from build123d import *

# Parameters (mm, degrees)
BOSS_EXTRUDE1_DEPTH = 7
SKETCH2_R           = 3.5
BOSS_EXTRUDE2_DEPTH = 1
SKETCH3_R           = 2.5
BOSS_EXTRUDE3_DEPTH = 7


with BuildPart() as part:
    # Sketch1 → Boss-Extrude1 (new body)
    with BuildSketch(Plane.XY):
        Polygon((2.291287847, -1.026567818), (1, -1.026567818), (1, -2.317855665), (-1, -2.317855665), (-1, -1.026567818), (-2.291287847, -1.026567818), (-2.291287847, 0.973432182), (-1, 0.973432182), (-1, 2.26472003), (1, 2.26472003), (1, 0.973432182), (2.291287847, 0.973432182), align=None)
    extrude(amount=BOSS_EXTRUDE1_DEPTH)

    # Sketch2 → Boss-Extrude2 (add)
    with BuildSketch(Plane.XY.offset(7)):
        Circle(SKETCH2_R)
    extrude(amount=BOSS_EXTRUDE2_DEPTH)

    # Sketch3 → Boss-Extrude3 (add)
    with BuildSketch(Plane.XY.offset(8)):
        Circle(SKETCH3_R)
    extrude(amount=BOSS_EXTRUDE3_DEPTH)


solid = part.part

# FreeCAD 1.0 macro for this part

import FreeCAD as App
import Part
import Sketcher

doc = App.newDocument("Part")
body = doc.addObject("PartDesign::Body", "Body")

# Sketch on XY plane
sketch1 = body.newObject("Sketcher::SketchObject", "Sketch")
sketch1.AttachmentSupport = (doc.getObject("XY_Plane"), [""])
sketch1.MapMode = "FlatFace"
sketch1.addGeometry(Part.LineSegment(App.Vector(1, -1.026568, 0), App.Vector(2.291288, -1.026568, 0)), False)
sketch1.addGeometry(Part.LineSegment(App.Vector(2.291288, -1.026568, 0), App.Vector(2.291288, 0.973432, 0)), False)
sketch1.addGeometry(Part.LineSegment(App.Vector(2.291288, 0.973432, 0), App.Vector(1, 0.973432, 0)), False)
sketch1.addGeometry(Part.LineSegment(App.Vector(1, 0.973432, 0), App.Vector(1, 2.26472, 0)), False)
sketch1.addGeometry(Part.LineSegment(App.Vector(1, 2.26472, 0), App.Vector(-1, 2.26472, 0)), False)
sketch1.addGeometry(Part.LineSegment(App.Vector(-1, 2.26472, 0), App.Vector(-1, 0.973432, 0)), False)
sketch1.addGeometry(Part.LineSegment(App.Vector(-1, 0.973432, 0), App.Vector(-2.291288, 0.973432, 0)), False)
sketch1.addGeometry(Part.LineSegment(App.Vector(-2.291288, 0.973432, 0), App.Vector(-2.291288, -1.026568, 0)), False)
sketch1.addGeometry(Part.LineSegment(App.Vector(-2.291288, -1.026568, 0), App.Vector(-1, -1.026568, 0)), False)
sketch1.addGeometry(Part.LineSegment(App.Vector(-1, -1.026568, 0), App.Vector(-1, -2.317856, 0)), False)
sketch1.addGeometry(Part.LineSegment(App.Vector(-1, -2.317856, 0), App.Vector(1, -2.317856, 0)), False)
sketch1.addGeometry(Part.LineSegment(App.Vector(1, -2.317856, 0), App.Vector(1, -1.026568, 0)), False)
sketch1.addConstraint(Sketcher.Constraint("Coincident", 0, 2, 1, 1))
sketch1.addConstraint(Sketcher.Constraint("Coincident", 1, 2, 2, 1))
sketch1.addConstraint(Sketcher.Constraint("Coincident", 2, 2, 3, 1))
sketch1.addConstraint(Sketcher.Constraint("Coincident", 3, 2, 4, 1))
sketch1.addConstraint(Sketcher.Constraint("Coincident", 4, 2, 5, 1))
sketch1.addConstraint(Sketcher.Constraint("Coincident", 5, 2, 6, 1))
sketch1.addConstraint(Sketcher.Constraint("Coincident", 6, 2, 7, 1))
sketch1.addConstraint(Sketcher.Constraint("Coincident", 7, 2, 8, 1))
sketch1.addConstraint(Sketcher.Constraint("Coincident", 8, 2, 9, 1))
sketch1.addConstraint(Sketcher.Constraint("Coincident", 9, 2, 10, 1))
sketch1.addConstraint(Sketcher.Constraint("Coincident", 10, 2, 11, 1))
sketch1.addConstraint(Sketcher.Constraint("Coincident", 11, 2, 0, 1))
sketch1.addConstraint(Sketcher.Constraint("Horizontal", 0))
sketch1.addConstraint(Sketcher.Constraint("Vertical", 1))
sketch1.addConstraint(Sketcher.Constraint("Horizontal", 2))
sketch1.addConstraint(Sketcher.Constraint("Vertical", 3))
sketch1.addConstraint(Sketcher.Constraint("Horizontal", 4))
sketch1.addConstraint(Sketcher.Constraint("Vertical", 5))
sketch1.addConstraint(Sketcher.Constraint("Horizontal", 6))
sketch1.addConstraint(Sketcher.Constraint("Vertical", 7))
sketch1.addConstraint(Sketcher.Constraint("Horizontal", 8))
sketch1.addConstraint(Sketcher.Constraint("Vertical", 9))
sketch1.addConstraint(Sketcher.Constraint("Horizontal", 10))
sketch1.addConstraint(Sketcher.Constraint("Vertical", 11))
sketch1.addConstraint(Sketcher.Constraint("Symmetric", 2, 2, 5, 2, -2))
sketch1.addConstraint(Sketcher.Constraint("Symmetric", 0, 2, 7, 2, -2))
sketch1.addConstraint(Sketcher.Constraint("Vertical", 5, 2, 8, 2))
sketch1.addConstraint(Sketcher.Constraint("Vertical", 3, 2, 10, 2))
sketch1.addConstraint(Sketcher.Constraint("Equal", 10, 1))
sketch1.addConstraint(Sketcher.Constraint("Equal", 8, 3))
sketch1.addConstraint(Sketcher.Constraint("Equal", 5, 9))
sketch1.addConstraint(Sketcher.Constraint("DistanceX", 4, 2, 4, 1, 2.0))
sketch1.addConstraint(Sketcher.Constraint("DistanceX", 0, 1, 0, 2, 1.291288))
sketch1.addConstraint(Sketcher.Constraint("DistanceY", -1, 1, 3, 2, 2.26472))
pad1 = body.newObject("PartDesign::Pad", "Pad")
pad1.Profile = sketch1
pad1.Length = 7

# Sketch on XY plane
sketch2 = body.newObject("Sketcher::SketchObject", "Sketch001")
sketch2.AttachmentSupport = (doc.getObject("XY_Plane"), [""])
sketch2.MapMode = "FlatFace"
sketch2.AttachmentOffset = App.Placement(App.Vector(0, 0, 7), App.Rotation())
sketch2.addGeometry(Part.Circle(App.Vector(0, 0, 0), App.Vector(0, 0, 1), 3.5), False)
sketch2.addConstraint(Sketcher.Constraint("Coincident", 0, 3, -1, 1))
sketch2.addConstraint(Sketcher.Constraint("Diameter", 0, 7.0))
pad2 = body.newObject("PartDesign::Pad", "Pad001")
pad2.Profile = sketch2
pad2.Length = 1

# Sketch on XY plane
sketch3 = body.newObject("Sketcher::SketchObject", "Sketch002")
sketch3.AttachmentSupport = (doc.getObject("XY_Plane"), [""])
sketch3.MapMode = "FlatFace"
sketch3.AttachmentOffset = App.Placement(App.Vector(0, 0, 8), App.Rotation())
sketch3.addGeometry(Part.Circle(App.Vector(0, 0, 0), App.Vector(0, 0, 1), 2.5), False)
sketch3.addConstraint(Sketcher.Constraint("Coincident", 0, 3, -1, 1))
sketch3.addConstraint(Sketcher.Constraint("Diameter", 0, 5.0))
pad3 = body.newObject("PartDesign::Pad", "Pad002")
pad3.Profile = sketch3
pad3.Length = 7

doc.recompute()
